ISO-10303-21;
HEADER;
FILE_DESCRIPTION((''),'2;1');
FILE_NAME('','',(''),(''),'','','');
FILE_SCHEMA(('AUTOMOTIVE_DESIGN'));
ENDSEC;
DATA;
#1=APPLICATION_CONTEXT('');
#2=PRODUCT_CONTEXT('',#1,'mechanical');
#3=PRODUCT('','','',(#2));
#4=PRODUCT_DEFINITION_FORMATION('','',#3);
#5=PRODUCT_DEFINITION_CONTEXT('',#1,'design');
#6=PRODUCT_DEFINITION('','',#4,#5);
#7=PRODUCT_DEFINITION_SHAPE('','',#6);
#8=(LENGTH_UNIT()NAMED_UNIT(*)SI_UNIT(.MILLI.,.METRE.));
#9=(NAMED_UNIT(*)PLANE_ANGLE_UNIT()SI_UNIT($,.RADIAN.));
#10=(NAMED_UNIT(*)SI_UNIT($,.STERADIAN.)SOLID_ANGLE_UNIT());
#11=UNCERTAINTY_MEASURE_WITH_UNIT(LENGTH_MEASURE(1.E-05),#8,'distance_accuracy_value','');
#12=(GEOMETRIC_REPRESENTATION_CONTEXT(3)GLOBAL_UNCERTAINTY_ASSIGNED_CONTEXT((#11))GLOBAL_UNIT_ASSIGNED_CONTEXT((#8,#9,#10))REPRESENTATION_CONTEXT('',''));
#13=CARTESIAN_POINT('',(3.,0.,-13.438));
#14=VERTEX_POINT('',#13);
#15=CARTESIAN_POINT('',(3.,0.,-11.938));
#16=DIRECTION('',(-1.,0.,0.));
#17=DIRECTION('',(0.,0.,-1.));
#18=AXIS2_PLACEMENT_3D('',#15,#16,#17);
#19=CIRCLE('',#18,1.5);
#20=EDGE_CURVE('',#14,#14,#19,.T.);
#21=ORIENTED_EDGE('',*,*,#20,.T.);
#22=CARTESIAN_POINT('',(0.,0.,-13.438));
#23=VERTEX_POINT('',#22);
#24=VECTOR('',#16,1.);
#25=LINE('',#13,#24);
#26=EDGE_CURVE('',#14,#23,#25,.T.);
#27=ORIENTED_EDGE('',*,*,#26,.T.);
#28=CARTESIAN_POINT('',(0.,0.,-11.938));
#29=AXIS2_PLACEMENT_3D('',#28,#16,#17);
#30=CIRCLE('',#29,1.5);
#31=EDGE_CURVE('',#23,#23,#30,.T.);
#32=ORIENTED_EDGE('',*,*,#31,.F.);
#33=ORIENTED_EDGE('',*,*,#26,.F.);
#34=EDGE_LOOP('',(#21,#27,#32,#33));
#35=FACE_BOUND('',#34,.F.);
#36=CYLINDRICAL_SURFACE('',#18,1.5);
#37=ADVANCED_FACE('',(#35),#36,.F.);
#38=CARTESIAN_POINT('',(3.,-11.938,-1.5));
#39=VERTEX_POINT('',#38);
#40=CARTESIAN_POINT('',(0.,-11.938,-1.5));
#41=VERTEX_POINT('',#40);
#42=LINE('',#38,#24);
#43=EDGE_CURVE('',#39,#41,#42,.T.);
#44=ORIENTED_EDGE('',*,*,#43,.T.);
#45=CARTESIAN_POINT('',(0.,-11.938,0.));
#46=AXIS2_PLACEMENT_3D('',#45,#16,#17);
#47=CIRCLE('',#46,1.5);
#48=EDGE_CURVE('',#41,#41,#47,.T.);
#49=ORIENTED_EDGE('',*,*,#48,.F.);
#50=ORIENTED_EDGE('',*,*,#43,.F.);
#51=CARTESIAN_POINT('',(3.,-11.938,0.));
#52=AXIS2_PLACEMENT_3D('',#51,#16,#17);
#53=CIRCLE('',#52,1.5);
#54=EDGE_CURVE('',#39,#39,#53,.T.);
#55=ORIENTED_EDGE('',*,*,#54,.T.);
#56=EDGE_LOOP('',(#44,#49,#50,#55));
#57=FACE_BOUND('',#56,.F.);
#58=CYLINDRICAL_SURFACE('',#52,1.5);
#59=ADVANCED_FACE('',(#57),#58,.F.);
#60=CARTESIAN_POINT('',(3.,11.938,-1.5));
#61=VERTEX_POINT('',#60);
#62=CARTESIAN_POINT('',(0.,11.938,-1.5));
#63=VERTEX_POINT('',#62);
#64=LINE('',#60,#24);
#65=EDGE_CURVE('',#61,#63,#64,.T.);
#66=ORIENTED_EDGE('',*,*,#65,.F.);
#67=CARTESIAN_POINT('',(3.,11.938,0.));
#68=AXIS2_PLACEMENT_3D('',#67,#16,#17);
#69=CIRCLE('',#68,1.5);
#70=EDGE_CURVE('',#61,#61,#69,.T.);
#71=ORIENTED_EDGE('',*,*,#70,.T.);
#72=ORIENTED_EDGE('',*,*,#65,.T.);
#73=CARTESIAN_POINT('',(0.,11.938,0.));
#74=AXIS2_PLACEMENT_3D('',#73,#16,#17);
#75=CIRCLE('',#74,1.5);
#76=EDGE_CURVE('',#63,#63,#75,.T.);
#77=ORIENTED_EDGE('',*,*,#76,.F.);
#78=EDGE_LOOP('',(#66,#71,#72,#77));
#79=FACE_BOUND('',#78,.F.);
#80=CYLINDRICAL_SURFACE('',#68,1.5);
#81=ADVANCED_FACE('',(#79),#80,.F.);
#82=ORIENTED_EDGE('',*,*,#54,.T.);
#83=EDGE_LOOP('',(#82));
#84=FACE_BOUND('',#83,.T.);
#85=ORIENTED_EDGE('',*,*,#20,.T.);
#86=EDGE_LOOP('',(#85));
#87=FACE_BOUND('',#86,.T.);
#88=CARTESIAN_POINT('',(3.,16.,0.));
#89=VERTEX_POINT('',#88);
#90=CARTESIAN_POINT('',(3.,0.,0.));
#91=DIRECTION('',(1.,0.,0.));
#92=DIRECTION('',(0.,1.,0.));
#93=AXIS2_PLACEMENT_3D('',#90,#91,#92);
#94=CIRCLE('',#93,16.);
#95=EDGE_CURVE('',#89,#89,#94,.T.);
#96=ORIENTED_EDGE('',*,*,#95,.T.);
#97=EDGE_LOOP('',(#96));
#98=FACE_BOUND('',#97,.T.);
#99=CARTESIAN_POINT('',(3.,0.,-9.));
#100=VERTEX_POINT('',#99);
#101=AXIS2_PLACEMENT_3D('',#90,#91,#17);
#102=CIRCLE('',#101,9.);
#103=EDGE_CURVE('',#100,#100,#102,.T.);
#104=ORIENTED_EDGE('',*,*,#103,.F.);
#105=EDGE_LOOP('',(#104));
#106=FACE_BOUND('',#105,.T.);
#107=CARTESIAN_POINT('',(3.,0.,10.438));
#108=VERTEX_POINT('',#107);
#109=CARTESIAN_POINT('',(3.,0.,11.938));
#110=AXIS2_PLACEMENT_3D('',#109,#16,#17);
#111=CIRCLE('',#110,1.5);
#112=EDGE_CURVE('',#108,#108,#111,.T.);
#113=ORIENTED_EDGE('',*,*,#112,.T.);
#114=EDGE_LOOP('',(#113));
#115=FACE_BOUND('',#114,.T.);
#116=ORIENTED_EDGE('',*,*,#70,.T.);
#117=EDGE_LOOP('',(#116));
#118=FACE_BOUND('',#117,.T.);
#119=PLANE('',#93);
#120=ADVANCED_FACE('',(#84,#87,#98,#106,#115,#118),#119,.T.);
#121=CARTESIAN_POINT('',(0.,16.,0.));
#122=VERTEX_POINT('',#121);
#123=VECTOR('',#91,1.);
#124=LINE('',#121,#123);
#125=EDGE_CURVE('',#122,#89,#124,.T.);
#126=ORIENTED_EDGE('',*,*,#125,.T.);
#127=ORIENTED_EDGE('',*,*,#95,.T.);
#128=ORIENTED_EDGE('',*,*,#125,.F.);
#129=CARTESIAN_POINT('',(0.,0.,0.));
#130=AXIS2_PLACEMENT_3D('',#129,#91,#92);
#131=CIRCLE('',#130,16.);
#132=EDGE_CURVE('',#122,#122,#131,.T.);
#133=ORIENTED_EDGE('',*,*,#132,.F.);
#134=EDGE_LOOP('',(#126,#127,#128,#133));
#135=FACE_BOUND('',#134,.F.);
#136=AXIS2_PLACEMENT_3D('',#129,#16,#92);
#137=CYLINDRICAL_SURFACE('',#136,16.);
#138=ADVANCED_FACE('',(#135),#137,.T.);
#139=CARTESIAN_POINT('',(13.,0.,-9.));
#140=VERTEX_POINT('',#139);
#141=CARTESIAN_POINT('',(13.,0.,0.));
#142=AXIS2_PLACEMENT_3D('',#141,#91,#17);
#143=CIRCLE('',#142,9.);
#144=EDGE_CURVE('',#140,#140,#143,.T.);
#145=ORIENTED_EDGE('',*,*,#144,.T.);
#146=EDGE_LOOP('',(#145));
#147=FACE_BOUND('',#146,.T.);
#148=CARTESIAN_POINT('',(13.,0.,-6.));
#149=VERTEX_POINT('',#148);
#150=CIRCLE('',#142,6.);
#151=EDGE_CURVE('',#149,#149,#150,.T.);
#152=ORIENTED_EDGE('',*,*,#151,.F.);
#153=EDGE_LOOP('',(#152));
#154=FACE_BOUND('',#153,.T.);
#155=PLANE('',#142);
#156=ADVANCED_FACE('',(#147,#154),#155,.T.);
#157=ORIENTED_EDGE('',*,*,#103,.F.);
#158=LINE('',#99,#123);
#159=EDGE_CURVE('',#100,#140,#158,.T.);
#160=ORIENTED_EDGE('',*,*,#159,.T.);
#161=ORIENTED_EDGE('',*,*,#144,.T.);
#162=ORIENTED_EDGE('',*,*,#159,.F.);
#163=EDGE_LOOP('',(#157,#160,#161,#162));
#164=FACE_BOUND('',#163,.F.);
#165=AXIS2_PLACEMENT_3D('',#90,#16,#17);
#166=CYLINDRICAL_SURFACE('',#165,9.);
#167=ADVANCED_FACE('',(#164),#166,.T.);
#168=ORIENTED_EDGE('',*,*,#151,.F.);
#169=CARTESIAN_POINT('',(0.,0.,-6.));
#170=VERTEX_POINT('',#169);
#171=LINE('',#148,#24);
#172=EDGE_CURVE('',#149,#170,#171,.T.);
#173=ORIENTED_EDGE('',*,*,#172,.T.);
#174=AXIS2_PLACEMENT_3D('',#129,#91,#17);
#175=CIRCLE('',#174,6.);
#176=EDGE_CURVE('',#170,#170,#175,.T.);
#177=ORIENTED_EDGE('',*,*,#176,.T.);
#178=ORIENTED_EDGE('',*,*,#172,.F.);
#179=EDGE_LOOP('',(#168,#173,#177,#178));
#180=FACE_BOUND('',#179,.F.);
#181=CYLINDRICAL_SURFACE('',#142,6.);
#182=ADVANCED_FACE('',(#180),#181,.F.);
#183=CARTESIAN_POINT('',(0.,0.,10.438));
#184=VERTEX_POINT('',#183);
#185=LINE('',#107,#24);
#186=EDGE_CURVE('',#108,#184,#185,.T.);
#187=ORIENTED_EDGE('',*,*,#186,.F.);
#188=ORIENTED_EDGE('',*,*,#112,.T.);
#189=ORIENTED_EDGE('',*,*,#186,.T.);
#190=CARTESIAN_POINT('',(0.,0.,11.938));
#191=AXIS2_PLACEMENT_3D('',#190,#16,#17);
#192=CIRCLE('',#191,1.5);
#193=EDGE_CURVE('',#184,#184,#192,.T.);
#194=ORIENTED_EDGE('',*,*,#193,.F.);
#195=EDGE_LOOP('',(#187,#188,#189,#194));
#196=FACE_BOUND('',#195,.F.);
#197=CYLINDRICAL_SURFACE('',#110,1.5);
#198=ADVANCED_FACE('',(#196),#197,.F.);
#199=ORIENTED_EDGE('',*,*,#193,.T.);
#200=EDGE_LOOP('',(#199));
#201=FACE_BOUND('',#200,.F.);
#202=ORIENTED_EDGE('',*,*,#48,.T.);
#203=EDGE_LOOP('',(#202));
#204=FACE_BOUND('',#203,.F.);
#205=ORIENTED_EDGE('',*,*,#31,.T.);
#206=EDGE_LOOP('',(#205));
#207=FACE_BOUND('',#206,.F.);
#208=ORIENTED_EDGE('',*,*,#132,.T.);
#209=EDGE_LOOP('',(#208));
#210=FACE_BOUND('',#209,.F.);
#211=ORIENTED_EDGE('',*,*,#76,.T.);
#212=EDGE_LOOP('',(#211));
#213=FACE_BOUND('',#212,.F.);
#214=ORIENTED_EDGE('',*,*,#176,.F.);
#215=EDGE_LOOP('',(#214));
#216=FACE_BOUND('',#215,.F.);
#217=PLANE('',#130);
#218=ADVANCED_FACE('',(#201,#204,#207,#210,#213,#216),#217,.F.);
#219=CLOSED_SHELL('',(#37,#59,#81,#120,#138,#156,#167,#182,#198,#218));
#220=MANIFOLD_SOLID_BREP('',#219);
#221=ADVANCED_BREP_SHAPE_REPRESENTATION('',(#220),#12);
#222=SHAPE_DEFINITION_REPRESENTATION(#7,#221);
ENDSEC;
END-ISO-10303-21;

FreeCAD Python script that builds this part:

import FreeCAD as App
import Part
import Sketcher

doc = App.newDocument("Part")
body = doc.addObject("PartDesign::Body", "Body")

# Sketch on YZ plane
sketch1 = body.newObject("Sketcher::SketchObject", "Sketch")
sketch1.AttachmentSupport = (doc.getObject("YZ_Plane"), [""])
sketch1.MapMode = "FlatFace"
sketch1.addGeometry(Part.Circle(App.Vector(0, 0, 0), App.Vector(0, 0, 1), 16), False)
sketch1.addConstraint(Sketcher.Constraint("Coincident", 0, 3, -1, 1))
sketch1.addConstraint(Sketcher.Constraint("Diameter", 0, 32.0))
pad1 = body.newObject("PartDesign::Pad", "Pad")
pad1.Profile = sketch1
pad1.Length = 3

# Sketch on YZ plane
sketch2 = body.newObject("Sketcher::SketchObject", "Sketch001")
sketch2.AttachmentSupport = (doc.getObject("YZ_Plane"), [""])
sketch2.MapMode = "FlatFace"
sketch2.AttachmentOffset = App.Placement(App.Vector(0, 0, 3), App.Rotation())
sketch2.addGeometry(Part.Circle(App.Vector(0, 0, 0), App.Vector(0, 0, 1), 9), False)
sketch2.addConstraint(Sketcher.Constraint("Coincident", 0, 3, -1, 1))
sketch2.addConstraint(Sketcher.Constraint("Diameter", 0, 18.0))
pad2 = body.newObject("PartDesign::Pad", "Pad001")
pad2.Profile = sketch2
pad2.Length = 10

# Sketch on YZ plane
sketch3 = body.newObject("Sketcher::SketchObject", "Sketch002")
sketch3.AttachmentSupport = (doc.getObject("YZ_Plane"), [""])
sketch3.MapMode = "FlatFace"
sketch3.AttachmentOffset = App.Placement(App.Vector(0, 0, 13), App.Rotation())
sketch3.addGeometry(Part.Circle(App.Vector(0, 0, 0), App.Vector(0, 0, 1), 6), False)
sketch3.addConstraint(Sketcher.Constraint("Coincident", 0, 3, -1, 1))
sketch3.addConstraint(Sketcher.Constraint("Diameter", 0, 12.0))
pocket1 = body.newObject("PartDesign::Pocket", "Pocket")
pocket1.Profile = sketch3
pocket1.Type = "ThroughAll"

# Sketch on YZ plane
sketch4 = body.newObject("Sketcher::SketchObject", "Sketch003")
sketch4.AttachmentSupport = (doc.getObject("YZ_Plane"), [""])
sketch4.MapMode = "FlatFace"
sketch4.AttachmentOffset = App.Placement(App.Vector(0, 0, 3), App.Rotation())
sketch4.addGeometry(Part.Circle(App.Vector(11.9, 0, 0), App.Vector(0, 0, 1), 1.5), False)
sketch4.addGeometry(Part.Circle(App.Vector(0, 11.9, 0), App.Vector(0, 0, 1), 1.5), False)
sketch4.addGeometry(Part.Circle(App.Vector(-11.9, 0, 0), App.Vector(0, 0, 1), 1.5), False)
sketch4.addGeometry(Part.Circle(App.Vector(0, -11.9, 0), App.Vector(0, 0, 1), 1.5), False)
sketch4.addConstraint(Sketcher.Constraint("Equal", 0, 1))
sketch4.addConstraint(Sketcher.Constraint("Equal", 1, 2))
sketch4.addConstraint(Sketcher.Constraint("Equal", 2, 3))
sketch4.addConstraint(Sketcher.Constraint("Symmetric", 0, 3, 2, 3, -1, 1))
sketch4.addConstraint(Sketcher.Constraint("Symmetric", 1, 3, 3, 3, -1, 1))
sketch4.addConstraint(Sketcher.Constraint("PointOnObject", 0, 3, -1))
sketch4.addConstraint(Sketcher.Constraint("PointOnObject", 1, 3, -2))
sketch4.addConstraint(Sketcher.Constraint("Diameter", 0, 3.0))
sketch4.addConstraint(Sketcher.Constraint("DistanceX", -1, 1, 0, 3, 11.938))
sketch4.addConstraint(Sketcher.Constraint("DistanceY", -1, 1, 1, 3, 11.938))
doc.recompute()
hole = body.newObject("PartDesign::Hole", "Hole")
hole.Profile = sketch4
hole.ThreadType = "None"
hole.Diameter = 3
hole.DepthType = "ThroughAll"

doc.recompute()
